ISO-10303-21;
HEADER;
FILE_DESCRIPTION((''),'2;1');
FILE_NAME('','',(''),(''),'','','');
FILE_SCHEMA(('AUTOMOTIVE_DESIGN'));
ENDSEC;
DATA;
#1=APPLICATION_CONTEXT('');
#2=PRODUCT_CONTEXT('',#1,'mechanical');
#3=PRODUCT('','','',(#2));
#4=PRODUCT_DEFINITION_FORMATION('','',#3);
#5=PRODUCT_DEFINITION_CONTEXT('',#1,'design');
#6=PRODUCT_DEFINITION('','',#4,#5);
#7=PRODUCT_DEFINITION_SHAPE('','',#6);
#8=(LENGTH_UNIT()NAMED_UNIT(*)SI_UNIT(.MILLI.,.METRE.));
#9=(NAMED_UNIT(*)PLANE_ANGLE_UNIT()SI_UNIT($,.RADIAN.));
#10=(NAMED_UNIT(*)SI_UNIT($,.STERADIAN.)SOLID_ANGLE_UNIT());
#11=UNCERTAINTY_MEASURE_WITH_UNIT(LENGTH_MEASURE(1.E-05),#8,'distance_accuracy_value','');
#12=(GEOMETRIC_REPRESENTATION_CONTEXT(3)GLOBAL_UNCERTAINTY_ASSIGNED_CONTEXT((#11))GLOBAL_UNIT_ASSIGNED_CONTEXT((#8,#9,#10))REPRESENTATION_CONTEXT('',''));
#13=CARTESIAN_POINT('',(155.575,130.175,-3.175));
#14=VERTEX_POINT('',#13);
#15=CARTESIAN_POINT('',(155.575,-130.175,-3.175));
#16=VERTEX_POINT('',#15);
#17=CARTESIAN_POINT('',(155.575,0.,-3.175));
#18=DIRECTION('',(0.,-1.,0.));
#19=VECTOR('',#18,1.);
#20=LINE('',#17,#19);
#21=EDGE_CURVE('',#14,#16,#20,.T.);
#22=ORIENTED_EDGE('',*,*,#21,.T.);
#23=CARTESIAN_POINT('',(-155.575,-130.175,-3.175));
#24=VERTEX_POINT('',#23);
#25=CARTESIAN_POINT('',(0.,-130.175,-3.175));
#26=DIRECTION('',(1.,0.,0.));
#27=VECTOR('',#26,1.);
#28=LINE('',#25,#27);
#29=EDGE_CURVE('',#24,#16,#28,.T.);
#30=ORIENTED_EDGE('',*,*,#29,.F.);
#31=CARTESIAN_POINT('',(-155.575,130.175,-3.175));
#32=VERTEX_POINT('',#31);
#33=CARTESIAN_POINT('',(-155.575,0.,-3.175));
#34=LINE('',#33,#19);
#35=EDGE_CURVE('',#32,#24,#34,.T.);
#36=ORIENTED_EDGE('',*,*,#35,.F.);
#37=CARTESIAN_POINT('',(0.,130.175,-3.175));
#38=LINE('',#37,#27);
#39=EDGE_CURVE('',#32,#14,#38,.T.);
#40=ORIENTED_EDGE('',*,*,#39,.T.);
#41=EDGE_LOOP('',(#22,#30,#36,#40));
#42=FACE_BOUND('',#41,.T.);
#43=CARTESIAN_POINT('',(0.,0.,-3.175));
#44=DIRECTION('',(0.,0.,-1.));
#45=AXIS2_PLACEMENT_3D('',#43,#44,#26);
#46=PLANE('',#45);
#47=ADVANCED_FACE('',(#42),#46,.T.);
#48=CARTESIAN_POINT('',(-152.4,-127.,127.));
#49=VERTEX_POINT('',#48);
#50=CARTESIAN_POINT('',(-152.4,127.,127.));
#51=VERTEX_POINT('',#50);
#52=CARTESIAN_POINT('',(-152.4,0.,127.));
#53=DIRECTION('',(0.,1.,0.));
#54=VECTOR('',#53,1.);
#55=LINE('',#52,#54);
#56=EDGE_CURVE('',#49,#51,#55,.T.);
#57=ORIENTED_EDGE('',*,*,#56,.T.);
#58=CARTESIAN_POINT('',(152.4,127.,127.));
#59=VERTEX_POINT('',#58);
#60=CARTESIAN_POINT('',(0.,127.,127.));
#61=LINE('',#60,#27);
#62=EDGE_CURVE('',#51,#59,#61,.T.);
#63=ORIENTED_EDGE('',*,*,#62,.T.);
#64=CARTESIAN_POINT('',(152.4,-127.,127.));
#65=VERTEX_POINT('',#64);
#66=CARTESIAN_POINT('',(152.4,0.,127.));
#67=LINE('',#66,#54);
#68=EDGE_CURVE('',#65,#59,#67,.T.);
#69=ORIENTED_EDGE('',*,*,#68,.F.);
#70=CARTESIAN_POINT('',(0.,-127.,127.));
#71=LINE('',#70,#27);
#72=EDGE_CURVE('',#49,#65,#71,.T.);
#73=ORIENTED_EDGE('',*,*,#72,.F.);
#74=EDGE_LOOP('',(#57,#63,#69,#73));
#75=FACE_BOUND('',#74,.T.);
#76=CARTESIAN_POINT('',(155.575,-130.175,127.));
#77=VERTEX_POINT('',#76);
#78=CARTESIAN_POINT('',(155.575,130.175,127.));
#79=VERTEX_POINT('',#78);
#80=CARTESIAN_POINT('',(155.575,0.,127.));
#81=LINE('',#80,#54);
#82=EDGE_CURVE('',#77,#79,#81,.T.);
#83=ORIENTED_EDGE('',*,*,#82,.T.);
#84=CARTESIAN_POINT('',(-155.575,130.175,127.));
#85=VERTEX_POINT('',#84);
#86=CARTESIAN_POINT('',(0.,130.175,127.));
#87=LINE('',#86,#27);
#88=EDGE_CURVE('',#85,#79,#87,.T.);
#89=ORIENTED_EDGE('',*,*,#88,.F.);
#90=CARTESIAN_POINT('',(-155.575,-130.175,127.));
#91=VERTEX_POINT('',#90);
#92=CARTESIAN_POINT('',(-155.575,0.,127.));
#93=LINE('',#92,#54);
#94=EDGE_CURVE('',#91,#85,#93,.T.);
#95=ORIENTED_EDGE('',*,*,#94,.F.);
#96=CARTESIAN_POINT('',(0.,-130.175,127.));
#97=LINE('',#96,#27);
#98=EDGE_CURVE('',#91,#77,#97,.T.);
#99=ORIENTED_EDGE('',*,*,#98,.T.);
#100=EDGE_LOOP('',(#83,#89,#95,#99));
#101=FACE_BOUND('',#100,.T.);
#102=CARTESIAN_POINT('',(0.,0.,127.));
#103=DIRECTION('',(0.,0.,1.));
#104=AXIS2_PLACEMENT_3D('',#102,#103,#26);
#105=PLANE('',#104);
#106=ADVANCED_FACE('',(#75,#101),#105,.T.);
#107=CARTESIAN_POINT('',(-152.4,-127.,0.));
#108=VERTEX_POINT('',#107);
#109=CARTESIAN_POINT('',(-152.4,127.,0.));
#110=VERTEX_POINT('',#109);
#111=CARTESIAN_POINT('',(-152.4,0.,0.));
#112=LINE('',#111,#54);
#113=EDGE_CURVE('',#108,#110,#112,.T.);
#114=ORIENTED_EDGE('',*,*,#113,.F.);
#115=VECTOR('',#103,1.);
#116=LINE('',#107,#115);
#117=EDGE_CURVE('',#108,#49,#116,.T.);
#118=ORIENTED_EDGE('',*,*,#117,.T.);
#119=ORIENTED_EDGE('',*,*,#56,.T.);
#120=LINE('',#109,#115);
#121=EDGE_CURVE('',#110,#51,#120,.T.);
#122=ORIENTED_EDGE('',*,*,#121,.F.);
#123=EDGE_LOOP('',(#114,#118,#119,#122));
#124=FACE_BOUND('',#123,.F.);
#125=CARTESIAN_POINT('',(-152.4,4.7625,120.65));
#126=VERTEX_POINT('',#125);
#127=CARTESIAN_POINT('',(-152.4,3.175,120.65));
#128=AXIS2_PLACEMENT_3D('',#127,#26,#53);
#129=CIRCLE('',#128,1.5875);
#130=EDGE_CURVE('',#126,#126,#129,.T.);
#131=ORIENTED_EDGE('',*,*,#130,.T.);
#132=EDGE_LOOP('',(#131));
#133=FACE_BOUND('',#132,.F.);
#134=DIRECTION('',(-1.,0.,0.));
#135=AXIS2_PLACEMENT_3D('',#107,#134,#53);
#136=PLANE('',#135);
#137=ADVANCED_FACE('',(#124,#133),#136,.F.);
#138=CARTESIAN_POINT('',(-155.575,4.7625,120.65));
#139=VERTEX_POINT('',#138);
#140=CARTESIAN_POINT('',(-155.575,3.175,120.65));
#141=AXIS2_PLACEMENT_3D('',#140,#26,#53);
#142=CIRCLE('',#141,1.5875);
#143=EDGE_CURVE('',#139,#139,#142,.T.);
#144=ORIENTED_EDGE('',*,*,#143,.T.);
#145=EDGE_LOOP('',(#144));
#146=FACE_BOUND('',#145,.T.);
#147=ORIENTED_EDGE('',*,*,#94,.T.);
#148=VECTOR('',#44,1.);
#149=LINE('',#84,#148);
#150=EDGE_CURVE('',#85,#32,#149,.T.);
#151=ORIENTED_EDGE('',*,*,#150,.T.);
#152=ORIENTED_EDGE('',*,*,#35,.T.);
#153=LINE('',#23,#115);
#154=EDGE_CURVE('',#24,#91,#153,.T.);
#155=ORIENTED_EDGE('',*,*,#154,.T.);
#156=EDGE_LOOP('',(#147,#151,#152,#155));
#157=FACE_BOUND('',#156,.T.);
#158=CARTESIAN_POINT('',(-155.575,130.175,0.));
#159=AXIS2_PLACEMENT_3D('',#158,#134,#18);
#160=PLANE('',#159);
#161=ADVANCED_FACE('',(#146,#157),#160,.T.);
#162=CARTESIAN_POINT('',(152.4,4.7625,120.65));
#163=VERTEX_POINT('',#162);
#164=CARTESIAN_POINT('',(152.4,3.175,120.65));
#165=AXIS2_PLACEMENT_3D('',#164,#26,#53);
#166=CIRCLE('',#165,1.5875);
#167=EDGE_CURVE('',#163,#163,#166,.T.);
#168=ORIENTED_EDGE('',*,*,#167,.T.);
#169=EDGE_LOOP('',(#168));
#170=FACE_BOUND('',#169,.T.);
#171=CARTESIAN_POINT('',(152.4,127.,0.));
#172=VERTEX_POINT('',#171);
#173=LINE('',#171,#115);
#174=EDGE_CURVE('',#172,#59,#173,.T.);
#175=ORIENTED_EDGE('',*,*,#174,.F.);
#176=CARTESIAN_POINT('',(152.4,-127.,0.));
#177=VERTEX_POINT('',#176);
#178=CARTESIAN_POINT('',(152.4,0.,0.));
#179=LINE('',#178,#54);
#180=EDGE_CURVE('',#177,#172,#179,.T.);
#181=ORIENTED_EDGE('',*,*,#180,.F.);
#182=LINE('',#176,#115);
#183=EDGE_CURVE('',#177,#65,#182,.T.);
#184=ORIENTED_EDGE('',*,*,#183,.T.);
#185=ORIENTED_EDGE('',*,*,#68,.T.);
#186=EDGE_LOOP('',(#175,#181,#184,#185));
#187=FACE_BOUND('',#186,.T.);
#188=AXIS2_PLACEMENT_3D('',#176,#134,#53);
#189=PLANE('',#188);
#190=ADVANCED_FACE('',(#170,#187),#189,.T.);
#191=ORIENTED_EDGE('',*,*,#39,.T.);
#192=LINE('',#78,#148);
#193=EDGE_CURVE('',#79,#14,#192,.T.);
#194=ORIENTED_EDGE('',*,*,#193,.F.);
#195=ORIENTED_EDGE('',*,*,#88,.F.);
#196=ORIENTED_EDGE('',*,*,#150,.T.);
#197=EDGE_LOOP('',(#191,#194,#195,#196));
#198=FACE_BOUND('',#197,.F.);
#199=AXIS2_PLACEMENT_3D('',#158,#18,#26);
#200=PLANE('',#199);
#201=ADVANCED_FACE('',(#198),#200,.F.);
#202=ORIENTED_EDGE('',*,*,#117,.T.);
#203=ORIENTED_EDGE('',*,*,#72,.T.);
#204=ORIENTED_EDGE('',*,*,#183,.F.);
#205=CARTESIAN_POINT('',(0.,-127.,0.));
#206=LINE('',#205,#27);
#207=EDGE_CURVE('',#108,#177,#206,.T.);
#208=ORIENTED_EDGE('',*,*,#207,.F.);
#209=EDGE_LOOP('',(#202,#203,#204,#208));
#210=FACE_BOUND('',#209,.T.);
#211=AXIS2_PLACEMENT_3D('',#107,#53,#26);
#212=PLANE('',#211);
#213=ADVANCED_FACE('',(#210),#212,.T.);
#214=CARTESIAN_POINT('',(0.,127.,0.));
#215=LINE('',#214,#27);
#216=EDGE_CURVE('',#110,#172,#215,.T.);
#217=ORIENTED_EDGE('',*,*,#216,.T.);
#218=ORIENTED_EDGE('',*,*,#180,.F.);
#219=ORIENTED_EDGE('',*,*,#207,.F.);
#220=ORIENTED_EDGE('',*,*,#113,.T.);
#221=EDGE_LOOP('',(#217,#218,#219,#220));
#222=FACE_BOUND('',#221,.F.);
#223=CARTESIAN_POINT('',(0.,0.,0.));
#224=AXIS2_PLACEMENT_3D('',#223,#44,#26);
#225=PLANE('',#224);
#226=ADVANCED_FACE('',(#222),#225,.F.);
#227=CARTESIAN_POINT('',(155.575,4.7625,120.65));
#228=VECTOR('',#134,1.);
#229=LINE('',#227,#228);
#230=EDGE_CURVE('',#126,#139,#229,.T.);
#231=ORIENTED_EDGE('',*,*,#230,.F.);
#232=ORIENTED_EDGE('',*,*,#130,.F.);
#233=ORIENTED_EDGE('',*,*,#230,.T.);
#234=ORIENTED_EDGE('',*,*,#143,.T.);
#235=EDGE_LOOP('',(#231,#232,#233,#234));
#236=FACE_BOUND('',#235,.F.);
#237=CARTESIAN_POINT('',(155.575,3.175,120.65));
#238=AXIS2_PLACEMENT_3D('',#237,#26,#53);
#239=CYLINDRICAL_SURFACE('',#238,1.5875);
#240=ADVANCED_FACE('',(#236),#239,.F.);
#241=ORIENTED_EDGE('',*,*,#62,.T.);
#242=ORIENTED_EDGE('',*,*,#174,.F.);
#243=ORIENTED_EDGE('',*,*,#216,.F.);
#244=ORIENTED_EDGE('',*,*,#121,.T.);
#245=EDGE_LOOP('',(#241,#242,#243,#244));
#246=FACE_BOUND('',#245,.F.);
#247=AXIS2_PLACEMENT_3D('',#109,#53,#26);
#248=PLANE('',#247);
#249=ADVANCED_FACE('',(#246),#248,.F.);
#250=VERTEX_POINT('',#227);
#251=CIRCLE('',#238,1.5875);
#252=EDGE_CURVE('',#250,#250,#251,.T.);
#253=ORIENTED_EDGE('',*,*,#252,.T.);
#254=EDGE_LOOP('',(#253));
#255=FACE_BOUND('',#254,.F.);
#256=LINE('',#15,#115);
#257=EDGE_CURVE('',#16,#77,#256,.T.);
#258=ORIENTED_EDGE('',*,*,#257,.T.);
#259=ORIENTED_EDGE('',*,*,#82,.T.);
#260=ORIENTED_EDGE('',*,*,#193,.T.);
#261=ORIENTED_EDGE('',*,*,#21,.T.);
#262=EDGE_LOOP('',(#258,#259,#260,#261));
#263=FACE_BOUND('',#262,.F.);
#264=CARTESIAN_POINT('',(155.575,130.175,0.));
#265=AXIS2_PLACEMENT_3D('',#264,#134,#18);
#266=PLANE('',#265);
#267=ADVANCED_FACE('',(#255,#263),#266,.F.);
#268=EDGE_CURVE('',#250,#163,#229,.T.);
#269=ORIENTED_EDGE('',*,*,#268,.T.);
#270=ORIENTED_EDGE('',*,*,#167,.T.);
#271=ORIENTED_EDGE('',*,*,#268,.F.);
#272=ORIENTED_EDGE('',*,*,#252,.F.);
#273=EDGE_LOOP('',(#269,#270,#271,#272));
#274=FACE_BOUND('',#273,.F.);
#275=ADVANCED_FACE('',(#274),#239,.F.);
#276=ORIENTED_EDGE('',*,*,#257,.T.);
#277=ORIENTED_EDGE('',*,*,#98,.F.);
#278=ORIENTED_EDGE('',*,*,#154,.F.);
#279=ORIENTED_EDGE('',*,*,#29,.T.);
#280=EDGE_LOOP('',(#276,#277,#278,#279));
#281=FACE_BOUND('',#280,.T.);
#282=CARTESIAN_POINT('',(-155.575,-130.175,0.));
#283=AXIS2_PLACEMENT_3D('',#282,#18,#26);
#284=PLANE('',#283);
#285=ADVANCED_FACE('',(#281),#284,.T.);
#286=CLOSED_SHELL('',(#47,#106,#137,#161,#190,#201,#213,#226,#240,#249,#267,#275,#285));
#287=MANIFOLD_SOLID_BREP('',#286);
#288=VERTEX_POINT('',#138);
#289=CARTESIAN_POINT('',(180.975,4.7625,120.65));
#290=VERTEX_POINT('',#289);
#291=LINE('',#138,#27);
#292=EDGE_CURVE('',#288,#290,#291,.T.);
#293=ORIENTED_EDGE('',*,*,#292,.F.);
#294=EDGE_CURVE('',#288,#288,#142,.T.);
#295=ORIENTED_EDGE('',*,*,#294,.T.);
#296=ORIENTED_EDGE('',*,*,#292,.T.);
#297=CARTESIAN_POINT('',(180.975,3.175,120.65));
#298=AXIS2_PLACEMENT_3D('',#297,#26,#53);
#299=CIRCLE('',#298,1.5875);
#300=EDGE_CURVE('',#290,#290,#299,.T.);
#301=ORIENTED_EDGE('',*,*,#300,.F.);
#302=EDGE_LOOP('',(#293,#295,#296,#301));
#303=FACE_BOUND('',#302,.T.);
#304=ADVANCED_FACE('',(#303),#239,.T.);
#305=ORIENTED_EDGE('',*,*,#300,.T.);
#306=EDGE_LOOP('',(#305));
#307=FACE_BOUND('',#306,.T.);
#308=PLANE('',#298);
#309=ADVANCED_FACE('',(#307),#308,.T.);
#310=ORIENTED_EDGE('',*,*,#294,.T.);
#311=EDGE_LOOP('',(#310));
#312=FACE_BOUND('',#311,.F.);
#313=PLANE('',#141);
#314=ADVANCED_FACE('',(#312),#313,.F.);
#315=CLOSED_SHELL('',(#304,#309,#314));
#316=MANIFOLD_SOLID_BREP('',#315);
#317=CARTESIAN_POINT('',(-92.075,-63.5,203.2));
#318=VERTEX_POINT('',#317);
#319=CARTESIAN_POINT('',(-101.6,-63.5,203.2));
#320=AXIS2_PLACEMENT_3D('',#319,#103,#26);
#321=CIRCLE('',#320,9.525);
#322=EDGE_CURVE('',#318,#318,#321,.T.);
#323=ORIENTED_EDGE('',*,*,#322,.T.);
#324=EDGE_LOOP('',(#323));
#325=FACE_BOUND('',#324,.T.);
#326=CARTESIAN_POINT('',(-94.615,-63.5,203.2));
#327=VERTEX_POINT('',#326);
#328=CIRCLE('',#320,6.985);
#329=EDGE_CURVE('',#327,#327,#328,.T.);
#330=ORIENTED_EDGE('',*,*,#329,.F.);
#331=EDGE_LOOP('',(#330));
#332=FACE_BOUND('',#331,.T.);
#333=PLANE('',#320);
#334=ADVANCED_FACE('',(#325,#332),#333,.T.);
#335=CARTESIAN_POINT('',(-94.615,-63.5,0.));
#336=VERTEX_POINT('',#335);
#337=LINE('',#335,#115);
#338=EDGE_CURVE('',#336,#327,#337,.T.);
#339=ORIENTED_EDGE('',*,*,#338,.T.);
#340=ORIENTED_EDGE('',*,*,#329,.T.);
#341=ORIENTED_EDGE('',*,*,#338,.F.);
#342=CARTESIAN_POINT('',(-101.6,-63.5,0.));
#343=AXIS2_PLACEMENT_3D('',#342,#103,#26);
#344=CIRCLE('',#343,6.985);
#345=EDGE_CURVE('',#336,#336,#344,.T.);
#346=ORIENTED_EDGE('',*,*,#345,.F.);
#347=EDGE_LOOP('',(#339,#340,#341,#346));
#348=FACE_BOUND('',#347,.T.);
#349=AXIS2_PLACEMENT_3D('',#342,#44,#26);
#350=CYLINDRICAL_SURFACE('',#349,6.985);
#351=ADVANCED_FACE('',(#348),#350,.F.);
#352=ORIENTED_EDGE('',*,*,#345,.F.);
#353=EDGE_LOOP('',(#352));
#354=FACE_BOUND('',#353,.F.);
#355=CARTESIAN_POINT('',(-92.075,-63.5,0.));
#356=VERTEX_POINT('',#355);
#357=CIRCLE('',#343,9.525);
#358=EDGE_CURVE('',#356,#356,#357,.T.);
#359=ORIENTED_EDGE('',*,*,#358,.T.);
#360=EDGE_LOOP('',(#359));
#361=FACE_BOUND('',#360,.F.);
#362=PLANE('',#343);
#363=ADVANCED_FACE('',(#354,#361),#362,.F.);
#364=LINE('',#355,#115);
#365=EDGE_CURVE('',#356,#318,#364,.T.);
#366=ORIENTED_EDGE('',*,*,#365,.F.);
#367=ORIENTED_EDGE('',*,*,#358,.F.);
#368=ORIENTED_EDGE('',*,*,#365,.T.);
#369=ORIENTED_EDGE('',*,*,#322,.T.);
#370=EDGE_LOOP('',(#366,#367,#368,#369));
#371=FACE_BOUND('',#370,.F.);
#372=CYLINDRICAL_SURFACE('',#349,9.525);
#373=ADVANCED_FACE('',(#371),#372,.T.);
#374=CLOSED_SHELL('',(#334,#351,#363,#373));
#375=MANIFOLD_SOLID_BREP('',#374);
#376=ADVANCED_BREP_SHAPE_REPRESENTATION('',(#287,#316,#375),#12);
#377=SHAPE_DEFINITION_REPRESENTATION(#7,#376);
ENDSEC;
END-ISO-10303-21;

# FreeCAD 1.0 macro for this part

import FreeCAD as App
import Part
import Sketcher
Q = App.Units.Quantity

doc = App.newDocument("Part")
params = doc.addObject("Spreadsheet::Sheet", "Params")
for row, (alias, value) in enumerate([
    ("sketch1_width", "12 in"),
    ("sketch1_height", "10 in"),
    ("sketch1_width2", "12.25 in"),
    ("sketch1_height2", "10.25 in"),
    ("pad1_length", "5 in"),
    ("sketch2_width", "12.25 in"),
    ("sketch2_height", "10.25 in"),
    ("pad2_length", "0.125 in"),
    ("sketch3_diameter", "0.125 in"),
    ("sketch4_diameter", "0.125 in"),
    ("pad3_length", "1 in"),
    ("pad3_length2", "12.25 in"),
    ("sketch5_diameter", "0.75 in"),
    ("sketch5_diameter2", "0.55 in"),
    ("pad4_length", "8 in"),
], start=1):
    params.set(f"A{row}", alias)
    params.set(f"B{row}", "=" + value)
    params.setAlias(f"B{row}", alias)

body = doc.addObject("PartDesign::Body", "Body")

# Sketch on XY plane
sketch1 = doc.addObject("Sketcher::SketchObject", "Sketch")
body.addObject(sketch1)
sketch1.AttachmentSupport = (doc.XY_Plane, [""])
sketch1.MapMode = "FlatFace"
sketch1.addGeometry(Part.LineSegment(App.Vector(-156, 130, 0), App.Vector(-156, -130, 0)), False)
sketch1.addGeometry(Part.LineSegment(App.Vector(-156, -130, 0), App.Vector(156, -130, 0)), False)
sketch1.addGeometry(Part.LineSegment(App.Vector(156, -130, 0), App.Vector(156, 130, 0)), False)
sketch1.addGeometry(Part.LineSegment(App.Vector(156, 130, 0), App.Vector(-156, 130, 0)), False)
sketch1.addGeometry(Part.LineSegment(App.Vector(152, -127, 0), App.Vector(-152, -127, 0)), False)
sketch1.addGeometry(Part.LineSegment(App.Vector(-152, -127, 0), App.Vector(-152, 127, 0)), False)
sketch1.addGeometry(Part.LineSegment(App.Vector(-152, 127, 0), App.Vector(152, 127, 0)), False)
sketch1.addGeometry(Part.LineSegment(App.Vector(152, 127, 0), App.Vector(152, -127, 0)), False)
sketch1.addConstraint(Sketcher.Constraint("Coincident", 0, 2, 1, 1))
sketch1.addConstraint(Sketcher.Constraint("Coincident", 1, 2, 2, 1))
sketch1.addConstraint(Sketcher.Constraint("Coincident", 2, 2, 3, 1))
sketch1.addConstraint(Sketcher.Constraint("Coincident", 3, 2, 0, 1))
sketch1.addConstraint(Sketcher.Constraint("Coincident", 4, 2, 5, 1))
sketch1.addConstraint(Sketcher.Constraint("Coincident", 5, 2, 6, 1))
sketch1.addConstraint(Sketcher.Constraint("Coincident", 6, 2, 7, 1))
sketch1.addConstraint(Sketcher.Constraint("Coincident", 7, 2, 4, 1))
sketch1.addConstraint(Sketcher.Constraint("Vertical", 0))
sketch1.addConstraint(Sketcher.Constraint("Horizontal", 1))
sketch1.addConstraint(Sketcher.Constraint("Vertical", 2))
sketch1.addConstraint(Sketcher.Constraint("Horizontal", 3))
sketch1.addConstraint(Sketcher.Constraint("Horizontal", 4))
sketch1.addConstraint(Sketcher.Constraint("Vertical", 5))
sketch1.addConstraint(Sketcher.Constraint("Horizontal", 6))
sketch1.addConstraint(Sketcher.Constraint("Vertical", 7))
sketch1.addConstraint(Sketcher.Constraint("Symmetric", 0, 2, 2, 2, -1, 1))
sketch1.addConstraint(Sketcher.Constraint("Symmetric", 4, 2, 6, 2, -1, 1))
sketch1.addConstraint(Sketcher.Constraint("DistanceX", 4, 2, 4, 1, Q("12 in")))
sketch1.addConstraint(Sketcher.Constraint("DistanceY", 5, 1, 5, 2, Q("10 in")))
sketch1.addConstraint(Sketcher.Constraint("DistanceX", 1, 1, 1, 2, Q("12.25 in")))
sketch1.addConstraint(Sketcher.Constraint("DistanceY", 0, 2, 0, 1, Q("10.25 in")))
sketch1.setExpression("Constraints[18]", "Params.sketch1_width")
sketch1.setExpression("Constraints[19]", "Params.sketch1_height")
sketch1.setExpression("Constraints[20]", "Params.sketch1_width2")
sketch1.setExpression("Constraints[21]", "Params.sketch1_height2")
pad1 = doc.addObject("PartDesign::Pad", "Pad")
body.addObject(pad1)
pad1.Profile = sketch1
pad1.setExpression("Length", "Params.pad1_length")

# Sketch on XY plane
sketch2 = doc.addObject("Sketcher::SketchObject", "Sketch001")
body.addObject(sketch2)
sketch2.AttachmentSupport = (doc.XY_Plane, [""])
sketch2.MapMode = "FlatFace"
sketch2.addGeometry(Part.LineSegment(App.Vector(-156, -130, 0), App.Vector(-156, 130, 0)), False)
sketch2.addGeometry(Part.LineSegment(App.Vector(-156, 130, 0), App.Vector(156, 130, 0)), False)
sketch2.addGeometry(Part.LineSegment(App.Vector(156, 130, 0), App.Vector(156, -130, 0)), False)
sketch2.addGeometry(Part.LineSegment(App.Vector(156, -130, 0), App.Vector(-156, -130, 0)), False)
sketch2.addConstraint(Sketcher.Constraint("Coincident", 0, 2, 1, 1))
sketch2.addConstraint(Sketcher.Constraint("Coincident", 1, 2, 2, 1))
sketch2.addConstraint(Sketcher.Constraint("Coincident", 2, 2, 3, 1))
sketch2.addConstraint(Sketcher.Constraint("Coincident", 3, 2, 0, 1))
sketch2.addConstraint(Sketcher.Constraint("Vertical", 0))
sketch2.addConstraint(Sketcher.Constraint("Horizontal", 1))
sketch2.addConstraint(Sketcher.Constraint("Vertical", 2))
sketch2.addConstraint(Sketcher.Constraint("Horizontal", 3))
sketch2.addConstraint(Sketcher.Constraint("Symmetric", 0, 2, 2, 2, -1, 1))
sketch2.addConstraint(Sketcher.Constraint("DistanceX", 1, 1, 1, 2, Q("12.25 in")))
sketch2.addConstraint(Sketcher.Constraint("DistanceY", 0, 1, 0, 2, Q("10.25 in")))
sketch2.setExpression("Constraints[9]", "Params.sketch2_width")
sketch2.setExpression("Constraints[10]", "Params.sketch2_height")
pad2 = doc.addObject("PartDesign::Pad", "Pad001")
body.addObject(pad2)
pad2.Profile = sketch2
pad2.setExpression("Length", "Params.pad2_length")
pad2.Reversed = True

# Sketch on YZ plane
sketch3 = doc.addObject("Sketcher::SketchObject", "Sketch002")
body.addObject(sketch3)
sketch3.AttachmentSupport = (doc.YZ_Plane, [""])
sketch3.MapMode = "FlatFace"
sketch3.AttachmentOffset = App.Placement(App.Vector(0, 0, 6.125 * 25.4), App.Rotation())
sketch3.addGeometry(Part.Circle(App.Vector(3.2, 120.7, 0), App.Vector(0, 0, 1), 1.6), False)
sketch3.addConstraint(Sketcher.Constraint("Diameter", 0, Q("0.125 in")))
sketch3.addConstraint(Sketcher.Constraint("DistanceY", -1, 1, 0, 3, Q("4.75 in")))
sketch3.addConstraint(Sketcher.Constraint("DistanceX", -1, 1, 0, 3, Q("0.125 in")))
sketch3.setExpression("Constraints[0]", "Params.sketch3_diameter")
pocket1 = doc.addObject("PartDesign::Pocket", "Pocket")
body.addObject(pocket1)
pocket1.Profile = sketch3
pocket1.Type = "ThroughAll"
body2 = doc.addObject("PartDesign::Body", "Body001")

# Sketch on YZ plane
sketch4 = doc.addObject("Sketcher::SketchObject", "Sketch003")
body2.addObject(sketch4)
sketch4.AttachmentSupport = (doc.getObject("YZ_Plane001"), [""])
sketch4.MapMode = "FlatFace"
sketch4.AttachmentOffset = App.Placement(App.Vector(0, 0, 6.125 * 25.4), App.Rotation())
sketch4.addGeometry(Part.Circle(App.Vector(3.2, 120.7, 0), App.Vector(0, 0, 1), 1.6), False)
sketch4.addConstraint(Sketcher.Constraint("Diameter", 0, Q("0.125 in")))
sketch4.addConstraint(Sketcher.Constraint("DistanceY", -1, 1, 0, 3, Q("4.75 in")))
sketch4.addConstraint(Sketcher.Constraint("DistanceX", -1, 1, 0, 3, Q("0.125 in")))
sketch4.setExpression("Constraints[0]", "Params.sketch4_diameter")
pad3 = doc.addObject("PartDesign::Pad", "Pad002")
body2.addObject(pad3)
pad3.Profile = sketch4
pad3.Type = "TwoLengths"
pad3.setExpression("Length", "Params.pad3_length")
pad3.setExpression("Length2", "Params.pad3_length2")
body3 = doc.addObject("PartDesign::Body", "Body002")

# Sketch on XY plane
sketch5 = doc.addObject("Sketcher::SketchObject", "Sketch004")
body3.addObject(sketch5)
sketch5.AttachmentSupport = (doc.getObject("XY_Plane002"), [""])
sketch5.MapMode = "FlatFace"
sketch5.addGeometry(Part.Circle(App.Vector(-102, -64, 0), App.Vector(0, 0, 1), 10), False)
sketch5.addGeometry(Part.Circle(App.Vector(-102, -64, 0), App.Vector(0, 0, 1), 7), False)
sketch5.addConstraint(Sketcher.Constraint("Coincident", 1, 3, 0, 3))
sketch5.addConstraint(Sketcher.Constraint("Diameter", 0, Q("0.75 in")))
sketch5.addConstraint(Sketcher.Constraint("Diameter", 1, Q("0.55 in")))
sketch5.addConstraint(Sketcher.Constraint("DistanceX", 0, 3, -1, 1, Q("4 in")))
sketch5.addConstraint(Sketcher.Constraint("DistanceY", 0, 3, -1, 1, Q("2.5 in")))
sketch5.setExpression("Constraints[1]", "Params.sketch5_diameter")
sketch5.setExpression("Constraints[2]", "Params.sketch5_diameter2")
pad4 = doc.addObject("PartDesign::Pad", "Pad003")
body3.addObject(pad4)
pad4.Profile = sketch5
pad4.setExpression("Length", "Params.pad4_length")

doc.recompute()
